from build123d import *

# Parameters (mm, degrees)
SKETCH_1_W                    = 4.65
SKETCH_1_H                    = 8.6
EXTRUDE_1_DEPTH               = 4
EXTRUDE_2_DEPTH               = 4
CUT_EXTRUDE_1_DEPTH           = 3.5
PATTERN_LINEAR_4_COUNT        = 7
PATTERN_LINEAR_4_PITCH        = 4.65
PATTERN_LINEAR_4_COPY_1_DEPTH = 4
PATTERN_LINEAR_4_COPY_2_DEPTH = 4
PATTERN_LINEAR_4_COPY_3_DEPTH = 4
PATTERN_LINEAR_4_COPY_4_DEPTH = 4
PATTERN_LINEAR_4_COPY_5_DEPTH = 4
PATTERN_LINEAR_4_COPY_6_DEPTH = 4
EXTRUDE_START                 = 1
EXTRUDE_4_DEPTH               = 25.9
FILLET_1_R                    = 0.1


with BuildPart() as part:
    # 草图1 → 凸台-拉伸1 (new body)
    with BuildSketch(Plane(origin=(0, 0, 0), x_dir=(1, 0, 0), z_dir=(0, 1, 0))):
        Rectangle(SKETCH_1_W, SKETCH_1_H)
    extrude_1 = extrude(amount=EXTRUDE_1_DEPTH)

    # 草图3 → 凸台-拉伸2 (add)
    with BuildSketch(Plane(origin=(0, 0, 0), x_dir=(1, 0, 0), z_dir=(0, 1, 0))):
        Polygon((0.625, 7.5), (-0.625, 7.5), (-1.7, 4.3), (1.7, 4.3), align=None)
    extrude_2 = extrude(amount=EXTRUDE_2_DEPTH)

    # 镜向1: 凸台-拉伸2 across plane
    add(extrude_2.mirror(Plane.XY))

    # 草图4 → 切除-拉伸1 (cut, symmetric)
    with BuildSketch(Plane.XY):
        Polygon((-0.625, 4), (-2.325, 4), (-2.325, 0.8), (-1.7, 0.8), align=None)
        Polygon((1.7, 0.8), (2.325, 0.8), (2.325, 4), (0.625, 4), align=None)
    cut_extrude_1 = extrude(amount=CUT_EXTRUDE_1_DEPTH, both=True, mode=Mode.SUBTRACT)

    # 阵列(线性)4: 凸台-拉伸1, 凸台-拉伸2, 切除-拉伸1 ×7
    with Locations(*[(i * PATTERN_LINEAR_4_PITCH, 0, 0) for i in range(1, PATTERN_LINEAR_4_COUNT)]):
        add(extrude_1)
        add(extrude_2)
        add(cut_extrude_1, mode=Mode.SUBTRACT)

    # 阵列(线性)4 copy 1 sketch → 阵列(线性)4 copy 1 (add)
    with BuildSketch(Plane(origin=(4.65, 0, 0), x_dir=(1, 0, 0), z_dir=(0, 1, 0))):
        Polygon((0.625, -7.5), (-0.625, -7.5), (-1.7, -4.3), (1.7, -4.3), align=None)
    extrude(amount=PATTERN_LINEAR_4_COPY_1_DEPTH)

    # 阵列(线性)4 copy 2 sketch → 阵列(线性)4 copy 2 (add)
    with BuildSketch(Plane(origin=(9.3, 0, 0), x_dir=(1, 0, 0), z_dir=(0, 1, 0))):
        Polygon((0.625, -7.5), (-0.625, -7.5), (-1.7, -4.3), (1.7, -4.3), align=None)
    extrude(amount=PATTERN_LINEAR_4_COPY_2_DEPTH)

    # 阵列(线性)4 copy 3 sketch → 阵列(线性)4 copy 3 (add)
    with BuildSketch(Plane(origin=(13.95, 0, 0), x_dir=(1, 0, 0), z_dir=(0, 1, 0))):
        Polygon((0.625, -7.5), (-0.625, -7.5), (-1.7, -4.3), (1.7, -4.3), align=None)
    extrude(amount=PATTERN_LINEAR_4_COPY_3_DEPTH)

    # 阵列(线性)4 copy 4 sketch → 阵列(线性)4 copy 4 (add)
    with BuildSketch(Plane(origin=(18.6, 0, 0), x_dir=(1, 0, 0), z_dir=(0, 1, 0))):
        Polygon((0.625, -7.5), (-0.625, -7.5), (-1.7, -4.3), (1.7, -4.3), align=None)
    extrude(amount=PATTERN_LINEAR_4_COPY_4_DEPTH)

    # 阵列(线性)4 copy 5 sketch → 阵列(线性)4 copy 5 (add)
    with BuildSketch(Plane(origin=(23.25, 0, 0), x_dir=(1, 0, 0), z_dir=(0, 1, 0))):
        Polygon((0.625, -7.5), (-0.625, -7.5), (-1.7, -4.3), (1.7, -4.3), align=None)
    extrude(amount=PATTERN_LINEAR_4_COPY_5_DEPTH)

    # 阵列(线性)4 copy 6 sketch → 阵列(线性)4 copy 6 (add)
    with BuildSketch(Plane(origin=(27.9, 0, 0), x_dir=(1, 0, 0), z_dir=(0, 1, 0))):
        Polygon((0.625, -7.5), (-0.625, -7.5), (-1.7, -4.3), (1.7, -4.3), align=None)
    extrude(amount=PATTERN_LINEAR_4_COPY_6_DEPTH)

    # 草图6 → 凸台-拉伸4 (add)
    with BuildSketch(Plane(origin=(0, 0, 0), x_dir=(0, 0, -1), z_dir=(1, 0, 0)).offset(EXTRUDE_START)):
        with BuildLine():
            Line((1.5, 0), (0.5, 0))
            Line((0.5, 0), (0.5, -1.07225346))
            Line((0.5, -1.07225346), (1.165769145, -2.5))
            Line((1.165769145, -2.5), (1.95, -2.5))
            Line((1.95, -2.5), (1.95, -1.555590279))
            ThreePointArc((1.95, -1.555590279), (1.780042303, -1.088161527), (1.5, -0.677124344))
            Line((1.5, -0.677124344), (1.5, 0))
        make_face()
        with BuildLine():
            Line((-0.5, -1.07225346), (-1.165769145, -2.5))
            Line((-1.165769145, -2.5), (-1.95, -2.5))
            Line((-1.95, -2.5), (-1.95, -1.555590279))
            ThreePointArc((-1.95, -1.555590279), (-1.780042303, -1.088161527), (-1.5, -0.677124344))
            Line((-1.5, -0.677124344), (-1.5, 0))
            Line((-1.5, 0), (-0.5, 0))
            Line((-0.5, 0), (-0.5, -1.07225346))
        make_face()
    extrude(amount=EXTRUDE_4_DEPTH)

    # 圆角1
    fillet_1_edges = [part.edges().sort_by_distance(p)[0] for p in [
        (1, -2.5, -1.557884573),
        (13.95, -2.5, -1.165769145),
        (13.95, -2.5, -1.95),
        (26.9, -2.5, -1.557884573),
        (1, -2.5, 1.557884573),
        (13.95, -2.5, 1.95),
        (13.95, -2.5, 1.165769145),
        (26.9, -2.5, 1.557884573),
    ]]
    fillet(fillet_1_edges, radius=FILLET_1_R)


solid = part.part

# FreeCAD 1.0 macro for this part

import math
import FreeCAD as App
import Part
import Sketcher

V = App.Vector
Q = App.Units.Quantity


def edges_at(feature, points):
    """Names of the edges that pass closest to the given points."""
    edges = feature.Shape.Edges
    near = lambda p: min(range(len(edges)), key=lambda i: edges[i].distToShape(Part.Vertex(*p))[0])
    return sorted({f"Edge{near(p) + 1}" for p in points})

doc = App.newDocument("Part")
body = doc.addObject("PartDesign::Body", "Body")

# Sketch on XZ plane
sketch1 = body.newObject("Sketcher::SketchObject", "Sketch")
sketch1.AttachmentSupport = (doc.getObject("XZ_Plane"), [""])
sketch1.MapMode = "FlatFace"
sketch1.addGeometry([
    Part.LineSegment(V(-2.325, -4.3, 0), V(-2.325, 4.3, 0)),
    Part.LineSegment(V(-2.325, 4.3, 0), V(2.325, 4.3, 0)),
    Part.LineSegment(V(2.325, 4.3, 0), V(2.325, -4.3, 0)),
    Part.LineSegment(V(2.325, -4.3, 0), V(-2.325, -4.3, 0)),
], False)
sketch1.addConstraint([
    Sketcher.Constraint("Coincident", 0, 2, 1, 1),
    Sketcher.Constraint("Coincident", 1, 2, 2, 1),
    Sketcher.Constraint("Coincident", 2, 2, 3, 1),
    Sketcher.Constraint("Coincident", 3, 2, 0, 1),
    Sketcher.Constraint("Vertical", 0),
    Sketcher.Constraint("Horizontal", 1),
    Sketcher.Constraint("Vertical", 2),
    Sketcher.Constraint("Horizontal", 3),
    Sketcher.Constraint("Symmetric", 0, 2, 2, 2, -1, 1),
    Sketcher.Constraint("DistanceY", 0, 1, 0, 2, 8.6),
    Sketcher.Constraint("DistanceX", 1, 1, 1, 2, 4.65),
])
pad1 = body.newObject("PartDesign::Pad", "Pad")
pad1.Profile = sketch1
pad1.Length = 4
pad1.Reversed = True

# Sketch on XZ plane
sketch2 = body.newObject("Sketcher::SketchObject", "Sketch001")
sketch2.AttachmentSupport = (doc.getObject("XZ_Plane"), [""])
sketch2.MapMode = "FlatFace"
sketch2.addGeometry([
    Part.LineSegment(V(0.625, -7.5, 0), V(-0.625, -7.5, 0)),
    Part.LineSegment(V(-0.625, -7.5, 0), V(-1.7, -4.3, 0)),
    Part.LineSegment(V(-1.7, -4.3, 0), V(1.7, -4.3, 0)),
    Part.LineSegment(V(1.7, -4.3, 0), V(0.625, -7.5, 0)),
], False)
sketch2.addConstraint([
    Sketcher.Constraint("Coincident", 0, 2, 1, 1),
    Sketcher.Constraint("Coincident", 1, 2, 2, 1),
    Sketcher.Constraint("Coincident", 2, 2, 3, 1),
    Sketcher.Constraint("Coincident", 3, 2, 0, 1),
    Sketcher.Constraint("Horizontal", 0),
    Sketcher.Constraint("Horizontal", 2),
    Sketcher.Constraint("Equal", 1, 3),
    Sketcher.Constraint("DistanceX", 2, 1, 2, 2, 3.4),
    Sketcher.Constraint("DistanceX", 0, 2, 0, 1, 1.25),
    Sketcher.Constraint("DistanceY", 0, 2, -1, 1, 7.5),
    Sketcher.Constraint("DistanceX", 1, 2, -1, 1, 1.7),
    Sketcher.Constraint("DistanceY", 1, 2, -1, 1, 4.3),
])
pad2 = body.newObject("PartDesign::Pad", "Pad001")
pad2.Profile = sketch2
pad2.Length = 4
pad2.Reversed = True
doc.recompute()

mirrored = body.newObject("PartDesign::Mirrored", "Mirrored")
mirrored.Originals = [pad2]
mirrored.MirrorPlane = (doc.getObject("XY_Plane"), [""])
body.Tip = mirrored

# Sketch on XY plane
sketch3 = body.newObject("Sketcher::SketchObject", "Sketch002")
sketch3.AttachmentSupport = (doc.getObject("XY_Plane"), [""])
sketch3.MapMode = "FlatFace"
sketch3.addGeometry([
    Part.LineSegment(V(-0.625, 4, 0), V(-2.325, 4, 0)),  # 0
    Part.LineSegment(V(-2.325, 4, 0), V(-2.325, 0.8, 0)),  # 1
    Part.LineSegment(V(-2.325, 0.8, 0), V(-1.7, 0.8, 0)),  # 2
    Part.LineSegment(V(-1.7, 0.8, 0), V(-0.625, 4, 0)),  # 3
    Part.LineSegment(V(1.7, 0.8, 0), V(2.325, 0.8, 0)),  # 4
    Part.LineSegment(V(2.325, 0.8, 0), V(2.325, 4, 0)),  # 5
    Part.LineSegment(V(2.325, 4, 0), V(0.625, 4, 0)),  # 6
    Part.LineSegment(V(0.625, 4, 0), V(1.7, 0.8, 0)),  # 7
], False)
sketch3.addConstraint([
    Sketcher.Constraint("Coincident", 0, 2, 1, 1),
    Sketcher.Constraint("Coincident", 1, 2, 2, 1),
    Sketcher.Constraint("Coincident", 2, 2, 3, 1),
    Sketcher.Constraint("Coincident", 3, 2, 0, 1),
    Sketcher.Constraint("Coincident", 4, 2, 5, 1),
    Sketcher.Constraint("Coincident", 5, 2, 6, 1),
    Sketcher.Constraint("Coincident", 6, 2, 7, 1),
    Sketcher.Constraint("Coincident", 7, 2, 4, 1),
    Sketcher.Constraint("Horizontal", 0),
    Sketcher.Constraint("Vertical", 1),
    Sketcher.Constraint("Horizontal", 2),
    Sketcher.Constraint("Horizontal", 4),
    Sketcher.Constraint("Vertical", 5),
    Sketcher.Constraint("Horizontal", 6),
    Sketcher.Constraint("Symmetric", 1, 2, 4, 2, -2),
    Sketcher.Constraint("Symmetric", 3, 2, 6, 2, -2),
    Sketcher.Constraint("Equal", 2, 4),
    Sketcher.Constraint("DistanceX", 0, 2, 0, 1, 1.7),
    Sketcher.Constraint("DistanceY", 1, 2, 1, 1, 3.2),
    Sketcher.Constraint("DistanceY", -1, 1, 0, 2, 4.0),
    Sketcher.Constraint("DistanceX", 2, 2, -1, 1, 1.7),
    Sketcher.Constraint("DistanceX", 2, 1, 2, 2, 0.625),
])
pocket1 = body.newObject("PartDesign::Pocket", "Pocket")
pocket1.Profile = sketch3
pocket1.Length = 7
pocket1.Midplane = True
doc.recompute()

linearpattern = body.newObject("PartDesign::LinearPattern", "LinearPattern")
linearpattern.Originals = [pad1, pad2, pocket1]
linearpattern.Direction = (doc.getObject("X_Axis"), [""])
linearpattern.Mode = "offset"
linearpattern.Offset = 4.65
linearpattern.Occurrences = 7
body.Tip = linearpattern

# Sketch on XZ plane
sketch4 = body.newObject("Sketcher::SketchObject", "Sketch003")
sketch4.AttachmentSupport = (doc.getObject("XZ_Plane"), [""])
sketch4.MapMode = "FlatFace"
sketch4.addGeometry([
    Part.LineSegment(V(4.025, 7.5, 0), V(5.275, 7.5, 0)),
    Part.LineSegment(V(5.275, 7.5, 0), V(6.35, 4.3, 0)),
    Part.LineSegment(V(6.35, 4.3, 0), V(2.95, 4.3, 0)),
    Part.LineSegment(V(2.95, 4.3, 0), V(4.025, 7.5, 0)),
], False)
sketch4.addConstraint([
    Sketcher.Constraint("Coincident", 0, 2, 1, 1),
    Sketcher.Constraint("Coincident", 1, 2, 2, 1),
    Sketcher.Constraint("Coincident", 2, 2, 3, 1),
    Sketcher.Constraint("Coincident", 3, 2, 0, 1),
    Sketcher.Constraint("Horizontal", 0),
    Sketcher.Constraint("Horizontal", 2),
    Sketcher.Constraint("Equal", 1, 3),
    Sketcher.Constraint("DistanceX", 2, 2, 2, 1, 3.4),
    Sketcher.Constraint("DistanceX", 0, 1, 0, 2, 1.25),
    Sketcher.Constraint("DistanceY", -1, 1, 0, 2, 7.5),
    Sketcher.Constraint("DistanceY", -1, 1, 1, 2, 4.3),
    Sketcher.Constraint("DistanceX", -1, 1, 1, 2, 6.35),
])
pad3 = body.newObject("PartDesign::Pad", "Pad002")
pad3.Profile = sketch4
pad3.Length = 4
pad3.Reversed = True

# Sketch on XZ plane
sketch5 = body.newObject("Sketcher::SketchObject", "Sketch004")
sketch5.AttachmentSupport = (doc.getObject("XZ_Plane"), [""])
sketch5.MapMode = "FlatFace"
sketch5.addGeometry([
    Part.LineSegment(V(8.675, 7.5, 0), V(9.925, 7.5, 0)),
    Part.LineSegment(V(9.925, 7.5, 0), V(11, 4.3, 0)),
    Part.LineSegment(V(11, 4.3, 0), V(7.6, 4.3, 0)),
    Part.LineSegment(V(7.6, 4.3, 0), V(8.675, 7.5, 0)),
], False)
sketch5.addConstraint([
    Sketcher.Constraint("Coincident", 0, 2, 1, 1),
    Sketcher.Constraint("Coincident", 1, 2, 2, 1),
    Sketcher.Constraint("Coincident", 2, 2, 3, 1),
    Sketcher.Constraint("Coincident", 3, 2, 0, 1),
    Sketcher.Constraint("Horizontal", 0),
    Sketcher.Constraint("Horizontal", 2),
    Sketcher.Constraint("Equal", 1, 3),
    Sketcher.Constraint("DistanceX", 2, 2, 2, 1, 3.4),
    Sketcher.Constraint("DistanceX", -1, 1, 1, 2, 11.0),
    Sketcher.Constraint("DistanceX", 0, 1, 0, 2, 1.25),
    Sketcher.Constraint("DistanceY", -1, 1, 0, 2, 7.5),
    Sketcher.Constraint("DistanceY", -1, 1, 1, 2, 4.3),
])
pad4 = body.newObject("PartDesign::Pad", "Pad003")
pad4.Profile = sketch5
pad4.Length = 4
pad4.Reversed = True

# Sketch on XZ plane
sketch6 = body.newObject("Sketcher::SketchObject", "Sketch005")
sketch6.AttachmentSupport = (doc.getObject("XZ_Plane"), [""])
sketch6.MapMode = "FlatFace"
sketch6.addGeometry([
    Part.LineSegment(V(13.325, 7.5, 0), V(14.575, 7.5, 0)),
    Part.LineSegment(V(14.575, 7.5, 0), V(15.65, 4.3, 0)),
    Part.LineSegment(V(15.65, 4.3, 0), V(12.25, 4.3, 0)),
    Part.LineSegment(V(12.25, 4.3, 0), V(13.325, 7.5, 0)),
], False)
sketch6.addConstraint([
    Sketcher.Constraint("Coincident", 0, 2, 1, 1),
    Sketcher.Constraint("Coincident", 1, 2, 2, 1),
    Sketcher.Constraint("Coincident", 2, 2, 3, 1),
    Sketcher.Constraint("Coincident", 3, 2, 0, 1),
    Sketcher.Constraint("Horizontal", 0),
    Sketcher.Constraint("Horizontal", 2),
    Sketcher.Constraint("Equal", 1, 3),
    Sketcher.Constraint("DistanceX", 2, 2, 2, 1, 3.4),
    Sketcher.Constraint("DistanceX", 0, 1, 0, 2, 1.25),
    Sketcher.Constraint("DistanceY", -1, 1, 0, 2, 7.5),
    Sketcher.Constraint("DistanceY", -1, 1, 1, 2, 4.3),
    Sketcher.Constraint("DistanceX", -1, 1, 1, 2, 15.65),
])
pad5 = body.newObject("PartDesign::Pad", "Pad004")
pad5.Profile = sketch6
pad5.Length = 4
pad5.Reversed = True

# Sketch on XZ plane
sketch7 = body.newObject("Sketcher::SketchObject", "Sketch006")
sketch7.AttachmentSupport = (doc.getObject("XZ_Plane"), [""])
sketch7.MapMode = "FlatFace"
sketch7.addGeometry([
    Part.LineSegment(V(17.975, 7.5, 0), V(19.225, 7.5, 0)),
    Part.LineSegment(V(19.225, 7.5, 0), V(20.3, 4.3, 0)),
    Part.LineSegment(V(20.3, 4.3, 0), V(16.9, 4.3, 0)),
    Part.LineSegment(V(16.9, 4.3, 0), V(17.975, 7.5, 0)),
], False)
sketch7.addConstraint([
    Sketcher.Constraint("Coincident", 0, 2, 1, 1),
    Sketcher.Constraint("Coincident", 1, 2, 2, 1),
    Sketcher.Constraint("Coincident", 2, 2, 3, 1),
    Sketcher.Constraint("Coincident", 3, 2, 0, 1),
    Sketcher.Constraint("Horizontal", 0),
    Sketcher.Constraint("Horizontal", 2),
    Sketcher.Constraint("Equal", 1, 3),
    Sketcher.Constraint("DistanceX", 2, 2, 2, 1, 3.4),
    Sketcher.Constraint("DistanceX", 0, 1, 0, 2, 1.25),
    Sketcher.Constraint("DistanceY", -1, 1, 0, 2, 7.5),
    Sketcher.Constraint("DistanceX", -1, 1, 1, 2, 20.3),
    Sketcher.Constraint("DistanceY", -1, 1, 1, 2, 4.3),
])
pad6 = body.newObject("PartDesign::Pad", "Pad005")
pad6.Profile = sketch7
pad6.Length = 4
pad6.Reversed = True

# Sketch on XZ plane
sketch8 = body.newObject("Sketcher::SketchObject", "Sketch007")
sketch8.AttachmentSupport = (doc.getObject("XZ_Plane"), [""])
sketch8.MapMode = "FlatFace"
sketch8.addGeometry([
    Part.LineSegment(V(22.625, 7.5, 0), V(23.875, 7.5, 0)),
    Part.LineSegment(V(23.875, 7.5, 0), V(24.95, 4.3, 0)),
    Part.LineSegment(V(24.95, 4.3, 0), V(21.55, 4.3, 0)),
    Part.LineSegment(V(21.55, 4.3, 0), V(22.625, 7.5, 0)),
], False)
sketch8.addConstraint([
    Sketcher.Constraint("Coincident", 0, 2, 1, 1),
    Sketcher.Constraint("Coincident", 1, 2, 2, 1),
    Sketcher.Constraint("Coincident", 2, 2, 3, 1),
    Sketcher.Constraint("Coincident", 3, 2, 0, 1),
    Sketcher.Constraint("Horizontal", 0),
    Sketcher.Constraint("Horizontal", 2),
    Sketcher.Constraint("Equal", 1, 3),
    Sketcher.Constraint("DistanceX", 2, 2, 2, 1, 3.4),
    Sketcher.Constraint("DistanceX", 0, 1, 0, 2, 1.25),
    Sketcher.Constraint("DistanceY", -1, 1, 0, 2, 7.5),
    Sketcher.Constraint("DistanceY", -1, 1, 1, 2, 4.3),
    Sketcher.Constraint("DistanceX", -1, 1, 1, 2, 24.95),
])
pad7 = body.newObject("PartDesign::Pad", "Pad006")
pad7.Profile = sketch8
pad7.Length = 4
pad7.Reversed = True

# Sketch on XZ plane
sketch9 = body.newObject("Sketcher::SketchObject", "Sketch008")
sketch9.AttachmentSupport = (doc.getObject("XZ_Plane"), [""])
sketch9.MapMode = "FlatFace"
sketch9.addGeometry([
    Part.LineSegment(V(27.275, 7.5, 0), V(28.525, 7.5, 0)),
    Part.LineSegment(V(28.525, 7.5, 0), V(29.6, 4.3, 0)),
    Part.LineSegment(V(29.6, 4.3, 0), V(26.2, 4.3, 0)),
    Part.LineSegment(V(26.2, 4.3, 0), V(27.275, 7.5, 0)),
], False)
sketch9.addConstraint([
    Sketcher.Constraint("Coincident", 0, 2, 1, 1),
    Sketcher.Constraint("Coincident", 1, 2, 2, 1),
    Sketcher.Constraint("Coincident", 2, 2, 3, 1),
    Sketcher.Constraint("Coincident", 3, 2, 0, 1),
    Sketcher.Constraint("Horizontal", 0),
    Sketcher.Constraint("Horizontal", 2),
    Sketcher.Constraint("Equal", 1, 3),
    Sketcher.Constraint("DistanceX", 2, 2, 2, 1, 3.4),
    Sketcher.Constraint("DistanceX", 0, 1, 0, 2, 1.25),
    Sketcher.Constraint("DistanceY", -1, 1, 0, 2, 7.5),
    Sketcher.Constraint("DistanceX", -1, 1, 1, 2, 29.6),
    Sketcher.Constraint("DistanceY", -1, 1, 1, 2, 4.3),
])
pad8 = body.newObject("PartDesign::Pad", "Pad007")
pad8.Profile = sketch9
pad8.Length = 4
pad8.Reversed = True

# Sketch on YZ plane
sketch10 = body.newObject("Sketcher::SketchObject", "Sketch009")
sketch10.AttachmentSupport = (doc.getObject("YZ_Plane"), [""])
sketch10.MapMode = "FlatFace"
sketch10.AttachmentOffset = App.Placement(V(0, 0, 1), App.Rotation())
sketch10.addGeometry([
    Part.LineSegment(V(0, -1.5, 0), V(0, -0.5, 0)),  # 0
    Part.LineSegment(V(0, -0.5, 0), V(-1.072253, -0.5, 0)),  # 1
    Part.LineSegment(V(-1.072253, -0.5, 0), V(-2.5, -1.165769, 0)),  # 2
    Part.LineSegment(V(-2.5, -1.165769, 0), V(-2.5, -1.95, 0)),  # 3
    Part.LineSegment(V(-2.5, -1.95, 0), V(-1.55559, -1.95, 0)),  # 4
    Part.ArcOfCircle(Part.Circle(V(-2, 0, 0), V(0, 0, 1), 2), math.radians(-77.161432), math.radians(-48.590378)),  # 5
    Part.LineSegment(V(-0.677124, -1.5, 0), V(0, -1.5, 0)),  # 6
    Part.LineSegment(V(-2.5, 1.165769, 0), V(-1.072253, 0.5, 0)),  # 7
    Part.LineSegment(V(-1.072253, 0.5, 0), V(0, 0.5, 0)),  # 8
    Part.LineSegment(V(0, 0.5, 0), V(0, 1.5, 0)),  # 9
    Part.LineSegment(V(0, 1.5, 0), V(-0.677124, 1.5, 0)),  # 10
    Part.ArcOfCircle(Part.Circle(V(-2, 0, 0), V(0, 0, 1), 2), math.radians(48.590378), math.radians(77.161432)),  # 11
    Part.LineSegment(V(-1.55559, 1.95, 0), V(-2.5, 1.95, 0)),  # 12
    Part.LineSegment(V(-2.5, 1.95, 0), V(-2.5, 1.165769, 0)),  # 13
], False)
sketch10.addConstraint([
    Sketcher.Constraint("Coincident", 0, 2, 1, 1),
    Sketcher.Constraint("Coincident", 1, 2, 2, 1),
    Sketcher.Constraint("Coincident", 2, 2, 3, 1),
    Sketcher.Constraint("Coincident", 3, 2, 4, 1),
    Sketcher.Constraint("Coincident", 4, 2, 5, 1),
    Sketcher.Constraint("Coincident", 5, 2, 6, 1),
    Sketcher.Constraint("Coincident", 6, 2, 0, 1),
    Sketcher.Constraint("Coincident", 7, 2, 8, 1),
    Sketcher.Constraint("Coincident", 8, 2, 9, 1),
    Sketcher.Constraint("Coincident", 9, 2, 10, 1),
    Sketcher.Constraint("Coincident", 10, 2, 11, 1),
    Sketcher.Constraint("Coincident", 11, 2, 12, 1),
    Sketcher.Constraint("Coincident", 12, 2, 13, 1),
    Sketcher.Constraint("Coincident", 13, 2, 7, 1),
    Sketcher.Constraint("Vertical", 0),
    Sketcher.Constraint("Horizontal", 1),
    Sketcher.Constraint("Vertical", 3),
    Sketcher.Constraint("Horizontal", 4),
    Sketcher.Constraint("Horizontal", 6),
    Sketcher.Constraint("Horizontal", 8),
    Sketcher.Constraint("Vertical", 9),
    Sketcher.Constraint("Horizontal", 10),
    Sketcher.Constraint("Horizontal", 12),
    Sketcher.Constraint("Vertical", 13),
    Sketcher.Constraint("Coincident", 11, 3, 5, 3),
    Sketcher.Constraint("Equal", 5, 11),
    Sketcher.Constraint("Symmetric", 0, 2, 8, 2, -1, 1),
    Sketcher.Constraint("Symmetric", 6, 2, 9, 2, -1),
    Sketcher.Constraint("Symmetric", 4, 2, 11, 2, -1),
    Sketcher.Constraint("Symmetric", 2, 2, 13, 2, -1),
    Sketcher.Constraint("Vertical", 1, 2, 7, 2),
    Sketcher.Constraint("Radius", 5, 2.0),
    Sketcher.Constraint("DistanceY", 0, 1, 0, 2, 1.0),
    Sketcher.Constraint("Angle", 2, Q("-155 deg")),
    Sketcher.Constraint("DistanceX", 5, 3, -1, 1, 2.0),
    Sketcher.Constraint("DistanceY", 1, 2, 7, 2, 1.0),
    Sketcher.Constraint("DistanceX", 2, 2, -1, 1, 2.5),
    Sketcher.Constraint("DistanceY", 3, 2, -1, 1, 1.95),
    Sketcher.Constraint("DistanceY", 3, 2, 3, 1, 0.784231),
])
pad9 = body.newObject("PartDesign::Pad", "Pad008")
pad9.Profile = sketch10
pad9.Length = 25.9
doc.recompute()

fillet = body.newObject("PartDesign::Fillet", "Fillet")
fillet.Base = (pad9, edges_at(pad9, [
    (1, -2.5, -1.558),
    (13.95, -2.5, -1.166),
    (13.95, -2.5, -1.95),
    (26.9, -2.5, -1.558),
    (1, -2.5, 1.558),
    (13.95, -2.5, 1.95),
    (13.95, -2.5, 1.166),
    (26.9, -2.5, 1.558),
]))
fillet.Radius = 0.1

doc.recompute()
